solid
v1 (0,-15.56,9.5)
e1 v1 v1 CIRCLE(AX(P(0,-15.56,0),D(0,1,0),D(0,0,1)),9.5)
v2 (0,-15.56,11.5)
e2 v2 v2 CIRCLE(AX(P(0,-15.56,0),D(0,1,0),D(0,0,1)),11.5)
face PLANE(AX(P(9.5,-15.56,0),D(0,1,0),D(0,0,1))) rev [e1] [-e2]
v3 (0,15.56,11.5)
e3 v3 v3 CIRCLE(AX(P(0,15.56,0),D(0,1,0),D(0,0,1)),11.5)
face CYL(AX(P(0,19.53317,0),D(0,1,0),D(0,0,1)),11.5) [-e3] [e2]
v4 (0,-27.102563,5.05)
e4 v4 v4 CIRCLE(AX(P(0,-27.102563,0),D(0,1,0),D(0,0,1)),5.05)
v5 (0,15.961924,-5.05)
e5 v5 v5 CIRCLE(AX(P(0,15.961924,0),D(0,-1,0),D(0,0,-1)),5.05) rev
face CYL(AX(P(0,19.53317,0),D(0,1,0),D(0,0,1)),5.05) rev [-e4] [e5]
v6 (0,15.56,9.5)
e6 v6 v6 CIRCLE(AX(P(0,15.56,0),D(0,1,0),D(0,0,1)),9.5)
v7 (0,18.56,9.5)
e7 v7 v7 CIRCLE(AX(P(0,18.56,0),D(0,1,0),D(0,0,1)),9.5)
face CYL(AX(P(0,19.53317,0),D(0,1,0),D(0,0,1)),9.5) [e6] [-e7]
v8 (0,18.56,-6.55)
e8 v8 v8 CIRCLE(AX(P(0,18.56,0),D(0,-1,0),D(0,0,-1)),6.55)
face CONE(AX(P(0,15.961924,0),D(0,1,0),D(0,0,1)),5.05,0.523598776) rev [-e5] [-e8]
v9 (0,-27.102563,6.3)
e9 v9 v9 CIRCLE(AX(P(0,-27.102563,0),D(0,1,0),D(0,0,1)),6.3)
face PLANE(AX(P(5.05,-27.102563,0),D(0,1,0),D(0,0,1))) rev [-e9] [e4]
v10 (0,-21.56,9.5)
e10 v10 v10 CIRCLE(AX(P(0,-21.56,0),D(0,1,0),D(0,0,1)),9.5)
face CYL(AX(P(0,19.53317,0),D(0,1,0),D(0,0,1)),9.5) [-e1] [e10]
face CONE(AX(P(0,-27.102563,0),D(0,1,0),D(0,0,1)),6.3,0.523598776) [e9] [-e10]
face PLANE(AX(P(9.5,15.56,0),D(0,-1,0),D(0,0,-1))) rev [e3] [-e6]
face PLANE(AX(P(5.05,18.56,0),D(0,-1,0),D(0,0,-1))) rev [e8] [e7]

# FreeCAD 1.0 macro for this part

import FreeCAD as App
import Part
import Sketcher
Q = App.Units.Quantity


def edges_at(feature, points):
    """Names of the edges that pass closest to the given points."""
    edges = feature.Shape.Edges
    near = lambda p: min(range(len(edges)), key=lambda i: edges[i].distToShape(Part.Vertex(*p))[0])
    return sorted({f"Edge{near(p) + 1}" for p in points})


def add_polygon(sketch, points):
    """Adds a closed chain of lines whose ends are joined by coincident constraints."""
    first, n = sketch.GeometryCount, len(points)
    for a, b in zip(points, points[1:] + points[:1]):
        sketch.addGeometry(Part.LineSegment(App.Vector(*a, 0), App.Vector(*b, 0)), False)
    for i in range(n):
        sketch.addConstraint(Sketcher.Constraint("Coincident", first + i, 2, first + (i + 1) % n, 1))

doc = App.newDocument("Part")
params = doc.addObject("Spreadsheet::Sheet", "Params")
for row, (alias, value) in enumerate([
    ("sketch1_width", "2 mm"),
    ("sketch1_height", "6 mm"),
    ("sketch1_height2", "3 mm"),
    ("sketch1_length", "6.4 mm"),
    ("sketch1_width2", "1.25 mm"),
    ("revolution_angle", "360 deg"),
    ("chamfer_size", "1.5 mm"),
    ("chamfer_size2", "2.598076 mm"),
], start=1):
    params.set(f"A{row}", alias)
    params.set(f"B{row}", "=" + value)
    params.setAlias(f"B{row}", alias)

body = doc.addObject("PartDesign::Body", "Body")

# Sketch on XY plane
sketch1 = doc.addObject("Sketcher::SketchObject", "Sketch")
body.addObject(sketch1)
sketch1.AttachmentSupport = (doc.XY_Plane, [""])
sketch1.MapMode = "FlatFace"
add_polygon(sketch1, [(5, 18.6), (5, -27.1), (6.3, -27.1), (9.5, -21.6), (9.5, -15.6), (11.5, -15.6), (11.5, 15.6), (9.5, 15.6), (9.5, 18.6)])  # lines 0-8
sketch1.addConstraint([
    Sketcher.Constraint("Vertical", 0),
    Sketcher.Constraint("Horizontal", 1),
    Sketcher.Constraint("Vertical", 3),
    Sketcher.Constraint("Horizontal", 4),
    Sketcher.Constraint("Vertical", 5),
    Sketcher.Constraint("Horizontal", 6),
    Sketcher.Constraint("Vertical", 7),
    Sketcher.Constraint("Horizontal", 8),
    Sketcher.Constraint("Symmetric", 3, 2, 6, 2, -1),
    Sketcher.Constraint("DistanceX", 4, 1, 4, 2, Q("2 mm")),
    Sketcher.Constraint("DistanceY", 3, 1, 3, 2, Q("6 mm")),
    Sketcher.Constraint("DistanceY", 7, 1, 7, 2, Q("3 mm")),
    Sketcher.Constraint("Angle", 2, Q("60 deg")),
    Sketcher.Constraint("Distance", 2, Q("6.4 mm")),
    Sketcher.Constraint("DistanceX", 1, 1, 1, 2, Q("1.25 mm")),
    Sketcher.Constraint("DistanceY", 5, 1, 5, 2, Q("31.12 mm")),
    Sketcher.Constraint("DistanceX", -1, 1, 1, 2, Q("6.3 mm")),
])
sketch1.setExpression("Constraints[18]", "Params.sketch1_width")
sketch1.setExpression("Constraints[19]", "Params.sketch1_height")
sketch1.setExpression("Constraints[20]", "Params.sketch1_height2")
sketch1.setExpression("Constraints[22]", "Params.sketch1_length")
sketch1.setExpression("Constraints[23]", "Params.sketch1_width2")
revolution = doc.addObject("PartDesign::Revolution", "Revolution")
body.addObject(revolution)
revolution.Profile = sketch1
revolution.ReferenceAxis = (sketch1, ["V_Axis"])
revolution.setExpression("Angle", "Params.revolution_angle")
doc.recompute()

chamfer = doc.addObject("PartDesign::Chamfer", "Chamfer")
body.addObject(chamfer)
chamfer.Base = (revolution, edges_at(revolution, [(-5.05, 18.56, 0)]))
chamfer.ChamferType = "Two distances"
chamfer.setExpression("Size", "Params.chamfer_size")
chamfer.setExpression("Size2", "Params.chamfer_size2")
chamfer.FlipDirection = True

doc.recompute()
